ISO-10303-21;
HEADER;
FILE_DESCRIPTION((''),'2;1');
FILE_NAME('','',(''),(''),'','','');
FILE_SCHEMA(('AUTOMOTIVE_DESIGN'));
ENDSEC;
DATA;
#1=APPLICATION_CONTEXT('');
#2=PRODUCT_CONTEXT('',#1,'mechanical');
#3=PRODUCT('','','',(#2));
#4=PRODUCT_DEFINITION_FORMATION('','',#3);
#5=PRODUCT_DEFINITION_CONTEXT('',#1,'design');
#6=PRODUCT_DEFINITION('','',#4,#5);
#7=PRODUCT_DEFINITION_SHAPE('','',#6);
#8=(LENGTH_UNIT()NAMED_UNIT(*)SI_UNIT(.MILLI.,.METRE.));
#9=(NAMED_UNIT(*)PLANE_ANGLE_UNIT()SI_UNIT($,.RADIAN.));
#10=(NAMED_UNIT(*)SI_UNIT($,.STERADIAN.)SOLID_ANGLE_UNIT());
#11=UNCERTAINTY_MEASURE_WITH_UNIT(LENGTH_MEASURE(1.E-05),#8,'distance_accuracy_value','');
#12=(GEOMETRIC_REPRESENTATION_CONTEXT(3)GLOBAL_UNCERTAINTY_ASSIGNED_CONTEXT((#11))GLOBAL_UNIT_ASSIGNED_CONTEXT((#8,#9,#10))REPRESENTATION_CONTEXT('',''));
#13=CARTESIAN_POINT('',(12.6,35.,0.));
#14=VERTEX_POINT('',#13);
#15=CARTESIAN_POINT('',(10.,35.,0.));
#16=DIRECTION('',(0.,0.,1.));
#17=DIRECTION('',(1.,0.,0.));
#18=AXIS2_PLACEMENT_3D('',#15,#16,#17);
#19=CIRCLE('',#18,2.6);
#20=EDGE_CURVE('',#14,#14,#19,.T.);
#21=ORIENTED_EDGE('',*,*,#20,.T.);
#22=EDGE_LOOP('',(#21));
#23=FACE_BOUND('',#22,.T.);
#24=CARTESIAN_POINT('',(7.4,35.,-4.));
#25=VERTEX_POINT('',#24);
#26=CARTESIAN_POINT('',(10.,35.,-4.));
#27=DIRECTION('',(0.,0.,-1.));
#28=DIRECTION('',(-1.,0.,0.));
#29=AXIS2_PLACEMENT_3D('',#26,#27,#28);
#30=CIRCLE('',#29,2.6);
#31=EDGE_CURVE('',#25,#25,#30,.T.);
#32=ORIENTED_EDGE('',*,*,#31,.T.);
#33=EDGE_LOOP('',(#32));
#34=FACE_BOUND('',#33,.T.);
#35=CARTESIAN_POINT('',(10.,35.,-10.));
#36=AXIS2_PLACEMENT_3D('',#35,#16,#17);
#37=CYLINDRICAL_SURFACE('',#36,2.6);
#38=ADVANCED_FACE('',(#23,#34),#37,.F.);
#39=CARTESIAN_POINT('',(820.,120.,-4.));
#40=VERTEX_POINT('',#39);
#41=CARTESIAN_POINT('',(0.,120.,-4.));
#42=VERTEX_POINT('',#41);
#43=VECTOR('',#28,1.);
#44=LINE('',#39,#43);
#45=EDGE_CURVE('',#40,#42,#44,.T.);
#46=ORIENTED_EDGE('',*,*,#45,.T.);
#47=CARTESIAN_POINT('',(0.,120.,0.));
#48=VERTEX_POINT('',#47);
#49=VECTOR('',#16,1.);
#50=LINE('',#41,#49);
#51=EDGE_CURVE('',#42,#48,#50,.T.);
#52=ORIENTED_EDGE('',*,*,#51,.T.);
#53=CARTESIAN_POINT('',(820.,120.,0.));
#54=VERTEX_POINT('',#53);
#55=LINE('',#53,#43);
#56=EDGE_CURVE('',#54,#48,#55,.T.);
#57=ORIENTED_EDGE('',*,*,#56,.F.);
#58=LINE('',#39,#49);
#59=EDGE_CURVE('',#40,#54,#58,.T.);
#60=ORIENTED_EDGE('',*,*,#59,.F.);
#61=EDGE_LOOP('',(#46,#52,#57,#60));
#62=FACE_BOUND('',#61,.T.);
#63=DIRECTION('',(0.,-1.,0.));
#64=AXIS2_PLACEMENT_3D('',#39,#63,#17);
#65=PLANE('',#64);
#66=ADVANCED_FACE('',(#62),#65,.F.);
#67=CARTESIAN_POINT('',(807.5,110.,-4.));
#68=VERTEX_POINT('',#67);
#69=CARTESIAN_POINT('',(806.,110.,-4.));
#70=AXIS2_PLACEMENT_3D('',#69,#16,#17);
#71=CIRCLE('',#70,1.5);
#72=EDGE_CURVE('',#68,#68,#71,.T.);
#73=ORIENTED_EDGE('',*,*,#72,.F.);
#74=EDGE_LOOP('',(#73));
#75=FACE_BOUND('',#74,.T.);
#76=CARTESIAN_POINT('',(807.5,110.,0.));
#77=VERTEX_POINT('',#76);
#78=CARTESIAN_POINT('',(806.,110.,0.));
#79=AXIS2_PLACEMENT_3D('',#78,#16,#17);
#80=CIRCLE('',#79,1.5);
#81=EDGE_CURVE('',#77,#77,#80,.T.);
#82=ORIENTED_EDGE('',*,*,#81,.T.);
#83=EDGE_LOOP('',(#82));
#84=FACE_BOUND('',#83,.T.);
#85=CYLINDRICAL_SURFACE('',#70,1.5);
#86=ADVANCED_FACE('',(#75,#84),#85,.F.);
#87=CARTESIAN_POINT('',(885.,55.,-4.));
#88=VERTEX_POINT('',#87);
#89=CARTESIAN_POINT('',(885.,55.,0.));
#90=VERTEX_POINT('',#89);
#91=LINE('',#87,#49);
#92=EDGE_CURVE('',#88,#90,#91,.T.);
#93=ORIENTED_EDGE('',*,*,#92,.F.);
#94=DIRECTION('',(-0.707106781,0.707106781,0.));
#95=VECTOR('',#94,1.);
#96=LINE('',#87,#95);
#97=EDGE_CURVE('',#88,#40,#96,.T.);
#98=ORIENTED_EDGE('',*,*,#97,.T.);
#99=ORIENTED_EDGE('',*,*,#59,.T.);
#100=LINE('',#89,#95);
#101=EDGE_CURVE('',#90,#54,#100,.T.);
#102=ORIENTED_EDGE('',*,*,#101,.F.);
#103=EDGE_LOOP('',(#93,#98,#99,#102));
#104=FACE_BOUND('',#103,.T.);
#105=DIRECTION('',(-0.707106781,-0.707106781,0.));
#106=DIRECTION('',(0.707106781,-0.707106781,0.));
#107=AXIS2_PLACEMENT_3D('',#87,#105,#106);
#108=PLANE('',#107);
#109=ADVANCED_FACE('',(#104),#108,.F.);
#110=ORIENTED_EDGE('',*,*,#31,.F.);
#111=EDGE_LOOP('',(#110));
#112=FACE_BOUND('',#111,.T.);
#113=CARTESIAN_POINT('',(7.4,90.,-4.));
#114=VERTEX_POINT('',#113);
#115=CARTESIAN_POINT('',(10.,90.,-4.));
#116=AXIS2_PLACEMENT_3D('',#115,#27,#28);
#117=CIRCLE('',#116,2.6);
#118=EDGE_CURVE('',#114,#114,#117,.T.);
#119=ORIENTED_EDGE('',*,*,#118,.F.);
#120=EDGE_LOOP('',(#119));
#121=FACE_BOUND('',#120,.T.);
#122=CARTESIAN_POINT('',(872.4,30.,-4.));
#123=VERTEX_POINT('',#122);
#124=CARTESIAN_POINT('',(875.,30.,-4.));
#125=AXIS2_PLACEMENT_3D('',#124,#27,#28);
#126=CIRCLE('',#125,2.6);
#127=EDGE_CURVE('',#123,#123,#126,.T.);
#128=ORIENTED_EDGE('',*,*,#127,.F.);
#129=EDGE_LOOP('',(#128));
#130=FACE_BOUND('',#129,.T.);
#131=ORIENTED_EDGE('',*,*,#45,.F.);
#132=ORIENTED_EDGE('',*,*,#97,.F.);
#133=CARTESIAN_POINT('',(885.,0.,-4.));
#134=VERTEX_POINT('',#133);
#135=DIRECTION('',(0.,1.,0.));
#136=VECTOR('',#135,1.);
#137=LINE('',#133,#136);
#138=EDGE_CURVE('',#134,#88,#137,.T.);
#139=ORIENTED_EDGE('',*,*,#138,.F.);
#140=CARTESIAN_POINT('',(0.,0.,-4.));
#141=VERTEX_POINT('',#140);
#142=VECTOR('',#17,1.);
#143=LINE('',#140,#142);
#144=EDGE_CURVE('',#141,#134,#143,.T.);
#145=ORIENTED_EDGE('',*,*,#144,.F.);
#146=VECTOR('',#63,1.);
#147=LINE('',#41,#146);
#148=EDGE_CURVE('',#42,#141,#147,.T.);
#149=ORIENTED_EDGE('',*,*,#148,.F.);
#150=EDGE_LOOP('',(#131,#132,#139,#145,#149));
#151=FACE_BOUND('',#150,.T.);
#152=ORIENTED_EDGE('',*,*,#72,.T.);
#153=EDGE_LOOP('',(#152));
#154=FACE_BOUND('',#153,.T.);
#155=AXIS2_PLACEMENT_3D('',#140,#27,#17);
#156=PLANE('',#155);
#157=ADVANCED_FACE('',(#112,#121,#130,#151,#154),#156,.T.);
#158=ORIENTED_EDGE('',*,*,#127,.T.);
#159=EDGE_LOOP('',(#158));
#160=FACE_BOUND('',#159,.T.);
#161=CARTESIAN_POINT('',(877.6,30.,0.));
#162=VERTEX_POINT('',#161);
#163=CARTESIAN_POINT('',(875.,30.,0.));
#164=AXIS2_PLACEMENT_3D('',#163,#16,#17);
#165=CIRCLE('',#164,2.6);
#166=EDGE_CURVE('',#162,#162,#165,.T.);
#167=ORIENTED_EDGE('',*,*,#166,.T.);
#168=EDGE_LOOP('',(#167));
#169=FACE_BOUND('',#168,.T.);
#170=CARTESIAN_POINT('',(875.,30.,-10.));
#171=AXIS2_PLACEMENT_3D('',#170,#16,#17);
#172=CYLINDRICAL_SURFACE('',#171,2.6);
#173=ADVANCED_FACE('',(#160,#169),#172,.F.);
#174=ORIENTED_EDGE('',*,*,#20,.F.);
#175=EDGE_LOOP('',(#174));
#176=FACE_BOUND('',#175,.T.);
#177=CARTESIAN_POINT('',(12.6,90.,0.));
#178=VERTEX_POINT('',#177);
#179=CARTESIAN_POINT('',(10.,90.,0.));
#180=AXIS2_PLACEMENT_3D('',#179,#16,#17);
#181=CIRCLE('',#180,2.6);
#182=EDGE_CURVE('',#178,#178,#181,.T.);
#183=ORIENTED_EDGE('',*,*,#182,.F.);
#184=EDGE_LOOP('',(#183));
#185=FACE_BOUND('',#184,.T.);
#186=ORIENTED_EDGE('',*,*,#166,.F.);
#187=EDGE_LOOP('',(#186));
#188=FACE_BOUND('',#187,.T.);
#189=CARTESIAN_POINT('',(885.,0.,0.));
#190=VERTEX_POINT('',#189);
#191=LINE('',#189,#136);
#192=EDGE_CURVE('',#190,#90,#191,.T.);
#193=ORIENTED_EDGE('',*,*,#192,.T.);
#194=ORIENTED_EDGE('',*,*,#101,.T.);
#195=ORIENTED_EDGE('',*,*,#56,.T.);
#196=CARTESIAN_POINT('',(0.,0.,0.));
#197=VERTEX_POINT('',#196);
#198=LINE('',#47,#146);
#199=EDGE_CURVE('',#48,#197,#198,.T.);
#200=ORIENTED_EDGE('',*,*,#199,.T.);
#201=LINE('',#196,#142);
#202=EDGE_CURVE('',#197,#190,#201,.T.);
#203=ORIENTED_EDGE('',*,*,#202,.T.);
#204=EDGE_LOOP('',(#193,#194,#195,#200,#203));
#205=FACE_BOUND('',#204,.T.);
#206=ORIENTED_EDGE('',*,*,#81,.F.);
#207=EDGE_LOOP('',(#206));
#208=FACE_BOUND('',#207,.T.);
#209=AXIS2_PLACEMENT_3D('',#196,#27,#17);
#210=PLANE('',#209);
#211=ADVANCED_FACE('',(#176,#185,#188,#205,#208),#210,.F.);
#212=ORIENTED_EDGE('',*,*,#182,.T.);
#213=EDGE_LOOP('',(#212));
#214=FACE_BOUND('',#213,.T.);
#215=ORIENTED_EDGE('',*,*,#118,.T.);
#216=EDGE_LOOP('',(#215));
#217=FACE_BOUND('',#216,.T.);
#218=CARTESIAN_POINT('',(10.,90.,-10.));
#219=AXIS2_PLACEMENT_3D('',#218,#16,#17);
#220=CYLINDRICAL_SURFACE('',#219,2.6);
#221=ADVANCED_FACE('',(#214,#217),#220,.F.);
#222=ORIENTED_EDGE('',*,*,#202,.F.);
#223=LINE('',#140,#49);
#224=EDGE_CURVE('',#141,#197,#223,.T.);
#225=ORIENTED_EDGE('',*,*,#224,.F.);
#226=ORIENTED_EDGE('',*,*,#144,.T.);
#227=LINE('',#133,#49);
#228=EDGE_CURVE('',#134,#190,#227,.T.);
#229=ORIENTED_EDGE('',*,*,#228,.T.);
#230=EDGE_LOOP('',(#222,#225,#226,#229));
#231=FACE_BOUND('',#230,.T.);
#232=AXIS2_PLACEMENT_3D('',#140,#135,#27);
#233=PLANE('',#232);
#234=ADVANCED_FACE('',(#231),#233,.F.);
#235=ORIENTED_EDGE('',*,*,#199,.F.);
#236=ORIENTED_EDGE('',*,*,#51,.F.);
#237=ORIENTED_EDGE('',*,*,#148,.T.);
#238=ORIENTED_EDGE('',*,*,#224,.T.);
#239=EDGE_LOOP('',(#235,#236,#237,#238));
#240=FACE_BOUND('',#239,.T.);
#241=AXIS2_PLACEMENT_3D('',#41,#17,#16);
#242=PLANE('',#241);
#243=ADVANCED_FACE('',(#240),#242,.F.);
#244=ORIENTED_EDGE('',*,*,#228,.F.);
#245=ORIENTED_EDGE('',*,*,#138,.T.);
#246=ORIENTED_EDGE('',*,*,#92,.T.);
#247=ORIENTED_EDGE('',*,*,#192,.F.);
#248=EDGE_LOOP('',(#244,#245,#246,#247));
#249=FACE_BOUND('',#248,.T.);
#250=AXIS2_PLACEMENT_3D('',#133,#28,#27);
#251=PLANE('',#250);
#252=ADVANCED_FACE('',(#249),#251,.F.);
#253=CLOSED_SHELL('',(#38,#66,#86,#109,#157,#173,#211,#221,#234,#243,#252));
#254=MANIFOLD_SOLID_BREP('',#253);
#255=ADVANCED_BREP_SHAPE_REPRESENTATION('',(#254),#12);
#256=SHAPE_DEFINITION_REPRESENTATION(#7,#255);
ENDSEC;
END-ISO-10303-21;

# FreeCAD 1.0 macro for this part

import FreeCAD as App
import Part
import Sketcher

V = App.Vector


def add_polygon(sketch, points):
    """Adds a closed chain of lines whose ends are joined by coincident constraints."""
    first, n = sketch.GeometryCount, len(points)
    for a, b in zip(points, points[1:] + points[:1]):
        sketch.addGeometry(Part.LineSegment(App.Vector(*a, 0), App.Vector(*b, 0)), False)
    for i in range(n):
        sketch.addConstraint(Sketcher.Constraint("Coincident", first + i, 2, first + (i + 1) % n, 1))

doc = App.newDocument("Part")
body = doc.addObject("PartDesign::Body", "Body")

# Sketch on XY plane
sketch1 = body.newObject("Sketcher::SketchObject", "Sketch")
sketch1.AttachmentSupport = (doc.getObject("XY_Plane"), [""])
sketch1.MapMode = "FlatFace"
add_polygon(sketch1, [(0, 0), (885, 0), (885, 55), (820, 120), (0, 120)])  # lines 0-4
sketch1.addConstraint([
    Sketcher.Constraint("Horizontal", 0),
    Sketcher.Constraint("Vertical", 1),
    Sketcher.Constraint("Horizontal", 3),
    Sketcher.Constraint("Vertical", 4),
    Sketcher.Constraint("Coincident", 4, 2, -1, 1),
    Sketcher.Constraint("DistanceX", 0, 1, 0, 2, 885.0),
    Sketcher.Constraint("DistanceX", 3, 2, 3, 1, 820.0),
    Sketcher.Constraint("DistanceY", 1, 1, 1, 2, 55.0),
    Sketcher.Constraint("DistanceY", 4, 2, 4, 1, 120.0),
])
pad1 = body.newObject("PartDesign::Pad", "Pad")
pad1.Profile = sketch1
pad1.Length = 4
body2 = doc.addObject("PartDesign::Body", "Body001")
doc.recompute()

body.Placement = App.Placement(V(0, 0, -4), App.Rotation(V(0, 0, 1), 0))
boolean = body2.newObject("PartDesign::Boolean", "Boolean")
boolean.Type = "Fuse"
boolean.addObjects([body])

# Sketch on XY plane
sketch2 = body2.newObject("Sketcher::SketchObject", "Sketch001")
sketch2.AttachmentSupport = (doc.getObject("XY_Plane001"), [""])
sketch2.MapMode = "FlatFace"
sketch2.addGeometry([
    Part.Circle(V(10, 90, 0), V(0, 0, 1), 2.6),
    Part.Circle(V(10, 35, 0), V(0, 0, 1), 2.6),
], False)
sketch2.addConstraint([
    Sketcher.Constraint("Equal", 0, 1),
    Sketcher.Constraint("Vertical", 0, 3, 1, 3),
    Sketcher.Constraint("Diameter", 0, 5.2),
    Sketcher.Constraint("DistanceX", -1, 1, 0, 3, 10.0),
    Sketcher.Constraint("DistanceY", -1, 1, 0, 3, 90.0),
    Sketcher.Constraint("DistanceY", -1, 1, 1, 3, 35.0),
])
pocket1 = body2.newObject("PartDesign::Pocket", "Pocket")
pocket1.Profile = sketch2
pocket1.Length = 10

# Sketch on XY plane
sketch3 = body2.newObject("Sketcher::SketchObject", "Sketch002")
sketch3.AttachmentSupport = (doc.getObject("XY_Plane001"), [""])
sketch3.MapMode = "FlatFace"
sketch3.addGeometry(Part.Circle(V(875, 30, 0), V(0, 0, 1), 2.6), False)
sketch3.addConstraint([
    Sketcher.Constraint("Diameter", 0, 5.2),
    Sketcher.Constraint("DistanceX", -1, 1, 0, 3, 875.0),
    Sketcher.Constraint("DistanceY", -1, 1, 0, 3, 30.0),
])
pocket2 = body2.newObject("PartDesign::Pocket", "Pocket001")
pocket2.Profile = sketch3
pocket2.Length = 10

# Sketch on XY plane
sketch4 = body2.newObject("Sketcher::SketchObject", "Sketch003")
sketch4.AttachmentSupport = (doc.getObject("XY_Plane001"), [""])
sketch4.MapMode = "FlatFace"
sketch4.addGeometry(Part.Circle(V(806, 110, 0), V(0, 0, 1), 1.5), False)
sketch4.addConstraint([
    Sketcher.Constraint("Diameter", 0, 3.0),
    Sketcher.Constraint("DistanceX", -1, 1, 0, 3, 806.0),
    Sketcher.Constraint("DistanceY", -1, 1, 0, 3, 110.0),
])
pocket3 = body2.newObject("PartDesign::Pocket", "Pocket002")
pocket3.Profile = sketch4
pocket3.Type = "ThroughAll"

doc.recompute()
